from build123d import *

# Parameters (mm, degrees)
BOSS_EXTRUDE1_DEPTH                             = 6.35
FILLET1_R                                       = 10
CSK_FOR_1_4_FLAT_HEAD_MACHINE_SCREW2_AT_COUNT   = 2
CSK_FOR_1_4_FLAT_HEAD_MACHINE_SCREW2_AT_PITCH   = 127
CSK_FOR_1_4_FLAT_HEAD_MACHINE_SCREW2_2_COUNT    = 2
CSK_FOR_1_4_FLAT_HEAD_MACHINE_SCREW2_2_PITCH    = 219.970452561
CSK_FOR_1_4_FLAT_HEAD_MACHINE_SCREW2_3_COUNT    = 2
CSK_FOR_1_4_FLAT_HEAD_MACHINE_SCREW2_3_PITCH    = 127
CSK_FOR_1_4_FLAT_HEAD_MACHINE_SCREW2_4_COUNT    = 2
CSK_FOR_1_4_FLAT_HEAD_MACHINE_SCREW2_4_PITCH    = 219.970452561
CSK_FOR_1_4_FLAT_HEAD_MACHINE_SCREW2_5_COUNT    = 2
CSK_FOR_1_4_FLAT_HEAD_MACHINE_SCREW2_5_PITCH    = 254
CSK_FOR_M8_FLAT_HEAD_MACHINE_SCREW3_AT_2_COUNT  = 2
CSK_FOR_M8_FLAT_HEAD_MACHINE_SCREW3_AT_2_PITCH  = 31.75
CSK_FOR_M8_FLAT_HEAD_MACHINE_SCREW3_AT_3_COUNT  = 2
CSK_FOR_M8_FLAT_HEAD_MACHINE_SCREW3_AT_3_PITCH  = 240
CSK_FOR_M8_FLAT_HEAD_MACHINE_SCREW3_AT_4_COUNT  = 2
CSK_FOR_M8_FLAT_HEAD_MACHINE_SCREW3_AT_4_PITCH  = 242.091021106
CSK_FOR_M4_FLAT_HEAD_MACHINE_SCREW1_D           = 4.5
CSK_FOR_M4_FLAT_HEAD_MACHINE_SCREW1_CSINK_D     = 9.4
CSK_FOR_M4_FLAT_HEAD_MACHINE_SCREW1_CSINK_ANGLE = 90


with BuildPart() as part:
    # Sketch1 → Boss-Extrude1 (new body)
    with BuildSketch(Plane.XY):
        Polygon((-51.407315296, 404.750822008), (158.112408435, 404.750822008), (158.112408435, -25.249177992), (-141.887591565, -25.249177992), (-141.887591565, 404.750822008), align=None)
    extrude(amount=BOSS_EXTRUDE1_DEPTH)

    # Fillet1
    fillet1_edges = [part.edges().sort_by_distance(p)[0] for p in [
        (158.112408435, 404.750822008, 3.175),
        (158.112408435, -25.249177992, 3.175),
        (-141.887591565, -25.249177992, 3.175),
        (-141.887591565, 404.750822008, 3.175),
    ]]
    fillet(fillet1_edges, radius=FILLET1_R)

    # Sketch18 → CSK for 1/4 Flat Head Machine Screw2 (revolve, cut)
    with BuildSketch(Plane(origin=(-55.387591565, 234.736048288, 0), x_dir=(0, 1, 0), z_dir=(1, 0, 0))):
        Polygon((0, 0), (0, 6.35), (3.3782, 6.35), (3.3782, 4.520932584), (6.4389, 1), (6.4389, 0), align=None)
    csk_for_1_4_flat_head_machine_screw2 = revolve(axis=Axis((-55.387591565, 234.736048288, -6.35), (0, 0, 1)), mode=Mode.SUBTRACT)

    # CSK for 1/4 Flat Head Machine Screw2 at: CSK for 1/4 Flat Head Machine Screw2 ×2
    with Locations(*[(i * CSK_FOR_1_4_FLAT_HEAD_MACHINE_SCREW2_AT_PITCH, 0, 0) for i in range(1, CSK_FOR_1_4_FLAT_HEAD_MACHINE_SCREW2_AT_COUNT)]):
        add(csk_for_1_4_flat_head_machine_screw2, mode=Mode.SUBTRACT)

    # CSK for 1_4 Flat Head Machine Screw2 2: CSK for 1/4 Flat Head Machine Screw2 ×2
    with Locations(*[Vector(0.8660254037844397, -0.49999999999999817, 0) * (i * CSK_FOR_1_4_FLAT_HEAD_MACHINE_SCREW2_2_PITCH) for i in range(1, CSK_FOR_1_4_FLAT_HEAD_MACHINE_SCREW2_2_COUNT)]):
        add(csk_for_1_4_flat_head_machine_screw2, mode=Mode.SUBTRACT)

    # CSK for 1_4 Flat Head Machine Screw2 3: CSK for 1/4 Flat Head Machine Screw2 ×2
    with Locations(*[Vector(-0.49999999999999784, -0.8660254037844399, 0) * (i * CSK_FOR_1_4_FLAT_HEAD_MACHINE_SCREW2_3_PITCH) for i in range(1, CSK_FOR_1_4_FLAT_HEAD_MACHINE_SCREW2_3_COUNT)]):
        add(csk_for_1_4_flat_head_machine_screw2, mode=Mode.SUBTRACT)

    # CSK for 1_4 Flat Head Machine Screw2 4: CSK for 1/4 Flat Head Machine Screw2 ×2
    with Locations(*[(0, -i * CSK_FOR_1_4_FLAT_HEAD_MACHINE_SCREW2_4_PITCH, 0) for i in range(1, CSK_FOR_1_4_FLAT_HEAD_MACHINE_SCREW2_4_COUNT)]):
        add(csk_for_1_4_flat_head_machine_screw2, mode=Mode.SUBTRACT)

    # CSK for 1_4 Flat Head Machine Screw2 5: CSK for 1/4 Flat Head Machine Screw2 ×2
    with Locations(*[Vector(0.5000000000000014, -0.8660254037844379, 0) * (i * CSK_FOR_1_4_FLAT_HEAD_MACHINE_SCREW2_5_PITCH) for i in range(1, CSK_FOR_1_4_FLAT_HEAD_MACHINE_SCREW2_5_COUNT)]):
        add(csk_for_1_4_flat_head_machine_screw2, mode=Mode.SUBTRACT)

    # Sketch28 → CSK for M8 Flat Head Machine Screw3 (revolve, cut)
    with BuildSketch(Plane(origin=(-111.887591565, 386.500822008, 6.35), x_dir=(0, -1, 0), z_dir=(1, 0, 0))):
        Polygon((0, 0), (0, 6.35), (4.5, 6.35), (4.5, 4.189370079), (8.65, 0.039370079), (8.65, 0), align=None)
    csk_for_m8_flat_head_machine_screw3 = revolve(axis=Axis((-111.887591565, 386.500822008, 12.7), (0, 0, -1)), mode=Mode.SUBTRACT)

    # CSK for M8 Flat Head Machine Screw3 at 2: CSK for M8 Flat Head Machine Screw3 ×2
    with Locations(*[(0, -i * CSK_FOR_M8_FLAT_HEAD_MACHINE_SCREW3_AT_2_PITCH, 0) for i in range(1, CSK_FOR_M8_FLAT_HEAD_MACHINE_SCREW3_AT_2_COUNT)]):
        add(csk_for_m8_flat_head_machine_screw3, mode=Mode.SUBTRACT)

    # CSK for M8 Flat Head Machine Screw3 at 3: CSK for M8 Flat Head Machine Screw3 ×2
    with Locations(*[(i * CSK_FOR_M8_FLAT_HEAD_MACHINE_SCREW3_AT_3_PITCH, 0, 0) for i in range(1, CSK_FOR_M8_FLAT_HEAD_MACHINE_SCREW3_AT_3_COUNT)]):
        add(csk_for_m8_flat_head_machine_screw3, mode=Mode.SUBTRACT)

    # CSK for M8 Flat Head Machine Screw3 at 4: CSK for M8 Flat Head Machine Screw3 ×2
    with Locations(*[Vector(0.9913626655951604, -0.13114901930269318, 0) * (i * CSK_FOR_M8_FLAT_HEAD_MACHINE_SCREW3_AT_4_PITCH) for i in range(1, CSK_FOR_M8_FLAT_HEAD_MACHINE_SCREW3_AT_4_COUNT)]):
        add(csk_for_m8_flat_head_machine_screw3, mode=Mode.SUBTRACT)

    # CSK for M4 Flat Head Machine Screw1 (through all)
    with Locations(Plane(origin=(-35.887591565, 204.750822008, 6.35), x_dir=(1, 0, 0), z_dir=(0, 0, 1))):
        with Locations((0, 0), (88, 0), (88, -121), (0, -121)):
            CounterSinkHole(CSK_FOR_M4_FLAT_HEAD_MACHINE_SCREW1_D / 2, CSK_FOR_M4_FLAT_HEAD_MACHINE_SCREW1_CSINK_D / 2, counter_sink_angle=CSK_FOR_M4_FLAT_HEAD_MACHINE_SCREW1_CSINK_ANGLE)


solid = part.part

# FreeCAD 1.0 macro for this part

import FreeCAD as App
import Part
import Sketcher
from FreeCAD import Vector
Q = App.Units.Quantity


def edges_at(feature, points):
    """Names of the edges that pass closest to the given points."""
    edges = feature.Shape.Edges
    near = lambda p: min(range(len(edges)), key=lambda i: edges[i].distToShape(Part.Vertex(*p))[0])
    return sorted({f"Edge{near(p) + 1}" for p in points})

doc = App.newDocument("Part")
params = doc.addObject("Spreadsheet::Sheet", "Params")
for row, (alias, value) in enumerate([
    ("sketch1_width", "300 mm"),
    ("sketch1_height", "430 mm"),
    ("pad1_length", "6.35 mm"),
    ("fillet_radius", "10 mm"),
    ("sketch2_height", "1 mm"),
    ("sketch2_height2", "6.35 mm"),
    ("groove_angle", "360 deg"),
    ("linearpattern_pitch", "127 mm"),
    ("linearpattern2_pitch", "219.970453 mm"),
    ("linearpattern3_pitch", "127 mm"),
    ("linearpattern4_pitch", "219.970453 mm"),
    ("linearpattern5_pitch", "254 mm"),
    ("sketch3_width", "4.5 mm"),
    ("sketch3_width2", "8.65 mm"),
    ("sketch3_height", "6.35 mm"),
    ("groove2_angle", "360 deg"),
    ("linearpattern6_pitch", "31.75 mm"),
    ("linearpattern7_pitch", "240 mm"),
    ("linearpattern8_pitch", "242.091021 mm"),
    ("sketch4_diameter", "4.5 mm"),
    ("hole_diameter", "4.5 mm"),
    ("hole_csink_diameter", "9.4 mm"),
], start=1):
    params.set(f"A{row}", alias)
    params.set(f"B{row}", "=" + value)
    params.setAlias(f"B{row}", alias)

body = doc.addObject("PartDesign::Body", "Body")

# Sketch on XY plane
sketch1 = body.newObject("Sketcher::SketchObject", "Sketch")
sketch1.AttachmentSupport = (doc.getObject("XY_Plane"), [""])
sketch1.MapMode = "FlatFace"
sketch1.addGeometry([
    Part.LineSegment(Vector(158.112408, 404.750822, 0), Vector(-141.887592, 404.750822, 0)),
    Part.LineSegment(Vector(-141.887592, 404.750822, 0), Vector(-141.887592, -25.249178, 0)),
    Part.LineSegment(Vector(-141.887592, -25.249178, 0), Vector(158.112408, -25.249178, 0)),
    Part.LineSegment(Vector(158.112408, -25.249178, 0), Vector(158.112408, 404.750822, 0)),
], False)
sketch1.addConstraint([
    Sketcher.Constraint("Coincident", 0, 2, 1, 1),
    Sketcher.Constraint("Coincident", 1, 2, 2, 1),
    Sketcher.Constraint("Coincident", 2, 2, 3, 1),
    Sketcher.Constraint("Coincident", 3, 2, 0, 1),
    Sketcher.Constraint("Horizontal", 0),
    Sketcher.Constraint("Vertical", 1),
    Sketcher.Constraint("Horizontal", 2),
    Sketcher.Constraint("Vertical", 3),
    Sketcher.Constraint("DistanceX", 0, 2, 0, 1, Q("300 mm")),
    Sketcher.Constraint("DistanceY", 1, 2, 1, 1, Q("430 mm")),
    Sketcher.Constraint("DistanceX", 0, 2, -1, 1, Q("141.887592 mm")),
    Sketcher.Constraint("DistanceY", -1, 1, 0, 2, Q("404.750822 mm")),
])
sketch1.setExpression("Constraints[8]", "Params.sketch1_width")
sketch1.setExpression("Constraints[9]", "Params.sketch1_height")
pad1 = body.newObject("PartDesign::Pad", "Pad")
pad1.Profile = sketch1
pad1.setExpression("Length", "Params.pad1_length")
doc.recompute()

fillet = body.newObject("PartDesign::Fillet", "Fillet")
fillet.Base = (pad1, edges_at(pad1, [
    (158.112, 404.751, 3.175),
    (158.112, -25.249, 3.175),
    (-141.888, -25.249, 3.175),
    (-141.888, 404.751, 3.175),
]))
fillet.setExpression("Radius", "Params.fillet_radius")

# Sketch on YZ plane
sketch2 = body.newObject("Sketcher::SketchObject", "Sketch001")
sketch2.AttachmentSupport = (doc.getObject("YZ_Plane"), [""])
sketch2.MapMode = "FlatFace"
sketch2.AttachmentOffset = App.Placement(Vector(0, 0, -55.387592), App.Rotation())
sketch2.addGeometry([
    Part.LineSegment(Vector(234.736048, 6.35, 0), Vector(234.736048, 0, 0)),  # 0
    Part.LineSegment(Vector(234.736048, 0, 0), Vector(241.174948, 0, 0)),  # 1
    Part.LineSegment(Vector(241.174948, 0, 0), Vector(241.174948, 1, 0)),  # 2
    Part.LineSegment(Vector(241.174948, 1, 0), Vector(238.114248, 4.520933, 0)),  # 3
    Part.LineSegment(Vector(238.114248, 4.520933, 0), Vector(238.114248, 6.35, 0)),  # 4
    Part.LineSegment(Vector(238.114248, 6.35, 0), Vector(234.736048, 6.35, 0)),  # 5
], False)
sketch2.addGeometry(Part.LineSegment(Vector(234.736048, 0, 0), Vector(234.736048, 6.35, 0)), True)  # axis
sketch2.addConstraint([
    Sketcher.Constraint("Coincident", 0, 2, 1, 1),
    Sketcher.Constraint("Coincident", 1, 2, 2, 1),
    Sketcher.Constraint("Coincident", 2, 2, 3, 1),
    Sketcher.Constraint("Coincident", 3, 2, 4, 1),
    Sketcher.Constraint("Coincident", 4, 2, 5, 1),
    Sketcher.Constraint("Coincident", 5, 2, 0, 1),
    Sketcher.Constraint("Vertical", 0),
    Sketcher.Constraint("Horizontal", 1),
    Sketcher.Constraint("Vertical", 2),
    Sketcher.Constraint("Vertical", 4),
    Sketcher.Constraint("Horizontal", 5),
    Sketcher.Constraint("Vertical", 6),
    Sketcher.Constraint("Coincident", 6, 1, 0, 2),
    Sketcher.Constraint("PointOnObject", 0, 2, -1),
    Sketcher.Constraint("Horizontal", 4, 2, 6, 2),
    Sketcher.Constraint("DistanceY", 2, 1, 2, 2, Q("1 mm")),
    Sketcher.Constraint("Angle", 3, Q("131 deg")),
    Sketcher.Constraint("DistanceY", 0, 2, 0, 1, Q("6.35 mm")),
    Sketcher.Constraint("DistanceX", 1, 1, 1, 2, Q("6.4389 mm")),
    Sketcher.Constraint("DistanceX", 5, 2, 5, 1, Q("3.3782 mm")),
    Sketcher.Constraint("DistanceX", -1, 1, 0, 2, Q("234.736048 mm")),
])
sketch2.setExpression("Constraints[15]", "Params.sketch2_height")
sketch2.setExpression("Constraints[17]", "Params.sketch2_height2")
groove = body.newObject("PartDesign::Groove", "Groove")
groove.Profile = sketch2
groove.ReferenceAxis = (sketch2, ["Axis0"])
groove.setExpression("Angle", "Params.groove_angle")
doc.recompute()

linearpattern = body.newObject("PartDesign::LinearPattern", "LinearPattern")
linearpattern.Originals = [groove]
linearpattern.Direction = (doc.getObject("X_Axis"), [""])
linearpattern.Mode = "offset"
linearpattern.setExpression("Offset", "Params.linearpattern_pitch")
linearpattern.Occurrences = 2
body.Tip = linearpattern
doc.recompute()

datumline = body.newObject("PartDesign::Line", "DatumLine")
datumline.Placement = App.Placement(Vector(0, 0, 0), App.Rotation(Vector(0, 0, 1), Vector(0.866025404, -0.5, 0)))
linearpattern2 = body.newObject("PartDesign::LinearPattern", "LinearPattern001")
linearpattern2.Originals = [groove]
linearpattern2.Direction = (datumline, [""])
linearpattern2.Mode = "offset"
linearpattern2.setExpression("Offset", "Params.linearpattern2_pitch")
linearpattern2.Occurrences = 2
body.Tip = linearpattern2
doc.recompute()

datumline2 = body.newObject("PartDesign::Line", "DatumLine001")
datumline2.Placement = App.Placement(Vector(0, 0, 0), App.Rotation(Vector(0, 0, 1), Vector(-0.5, -0.866025404, 0)))
linearpattern3 = body.newObject("PartDesign::LinearPattern", "LinearPattern002")
linearpattern3.Originals = [groove]
linearpattern3.Direction = (datumline2, [""])
linearpattern3.Mode = "offset"
linearpattern3.setExpression("Offset", "Params.linearpattern3_pitch")
linearpattern3.Occurrences = 2
body.Tip = linearpattern3
doc.recompute()

linearpattern4 = body.newObject("PartDesign::LinearPattern", "LinearPattern003")
linearpattern4.Originals = [groove]
linearpattern4.Direction = (doc.getObject("Y_Axis"), [""])
linearpattern4.Mode = "offset"
linearpattern4.setExpression("Offset", "Params.linearpattern4_pitch")
linearpattern4.Occurrences = 2
linearpattern4.Reversed = True
body.Tip = linearpattern4
doc.recompute()

datumline3 = body.newObject("PartDesign::Line", "DatumLine002")
datumline3.Placement = App.Placement(Vector(0, 0, 0), App.Rotation(Vector(0, 0, 1), Vector(0.5, -0.866025404, 0)))
linearpattern5 = body.newObject("PartDesign::LinearPattern", "LinearPattern004")
linearpattern5.Originals = [groove]
linearpattern5.Direction = (datumline3, [""])
linearpattern5.Mode = "offset"
linearpattern5.setExpression("Offset", "Params.linearpattern5_pitch")
linearpattern5.Occurrences = 2
body.Tip = linearpattern5

# Sketch on YZ plane
sketch3 = body.newObject("Sketcher::SketchObject", "Sketch002")
sketch3.AttachmentSupport = (doc.getObject("YZ_Plane"), [""])
sketch3.MapMode = "FlatFace"
sketch3.AttachmentOffset = App.Placement(Vector(0, 0, -111.887592), App.Rotation())
sketch3.addGeometry([
    Part.LineSegment(Vector(386.500822, 0, 0), Vector(386.500822, 6.35, 0)),  # 0
    Part.LineSegment(Vector(386.500822, 6.35, 0), Vector(377.850822, 6.35, 0)),  # 1
    Part.LineSegment(Vector(377.850822, 6.35, 0), Vector(377.850822, 6.31063, 0)),  # 2
    Part.LineSegment(Vector(377.850822, 6.31063, 0), Vector(382.000822, 2.16063, 0)),  # 3
    Part.LineSegment(Vector(382.000822, 2.16063, 0), Vector(382.000822, 0, 0)),  # 4
    Part.LineSegment(Vector(382.000822, 0, 0), Vector(386.500822, 0, 0)),  # 5
], False)
sketch3.addGeometry(Part.LineSegment(Vector(386.500822, 6.35, 0), Vector(386.500822, 0, 0)), True)  # axis
sketch3.addConstraint([
    Sketcher.Constraint("Coincident", 0, 2, 1, 1),
    Sketcher.Constraint("Coincident", 1, 2, 2, 1),
    Sketcher.Constraint("Coincident", 2, 2, 3, 1),
    Sketcher.Constraint("Coincident", 3, 2, 4, 1),
    Sketcher.Constraint("Coincident", 4, 2, 5, 1),
    Sketcher.Constraint("Coincident", 5, 2, 0, 1),
    Sketcher.Constraint("Vertical", 0),
    Sketcher.Constraint("Horizontal", 1),
    Sketcher.Constraint("Vertical", 2),
    Sketcher.Constraint("Vertical", 4),
    Sketcher.Constraint("Horizontal", 5),
    Sketcher.Constraint("Vertical", 6),
    Sketcher.Constraint("Coincident", 6, 1, 0, 2),
    Sketcher.Constraint("PointOnObject", 4, 2, -1),
    Sketcher.Constraint("PointOnObject", 6, 2, -1),
    Sketcher.Constraint("Angle", 3, Q("-45 deg")),
    Sketcher.Constraint("DistanceX", 5, 1, 5, 2, Q("4.5 mm")),
    Sketcher.Constraint("DistanceX", 1, 2, 1, 1, Q("8.65 mm")),
    Sketcher.Constraint("DistanceY", 0, 1, 0, 2, Q("6.35 mm")),
    Sketcher.Constraint("DistanceY", 2, 2, 2, 1, Q("0.03937 mm")),
    Sketcher.Constraint("DistanceX", -1, 1, 0, 2, Q("386.500822 mm")),
])
sketch3.setExpression("Constraints[16]", "Params.sketch3_width")
sketch3.setExpression("Constraints[17]", "Params.sketch3_width2")
sketch3.setExpression("Constraints[18]", "Params.sketch3_height")
groove2 = body.newObject("PartDesign::Groove", "Groove001")
groove2.Profile = sketch3
groove2.ReferenceAxis = (sketch3, ["Axis0"])
groove2.setExpression("Angle", "Params.groove2_angle")
doc.recompute()

linearpattern6 = body.newObject("PartDesign::LinearPattern", "LinearPattern005")
linearpattern6.Originals = [groove2]
linearpattern6.Direction = (doc.getObject("Y_Axis"), [""])
linearpattern6.Mode = "offset"
linearpattern6.setExpression("Offset", "Params.linearpattern6_pitch")
linearpattern6.Occurrences = 2
linearpattern6.Reversed = True
body.Tip = linearpattern6
doc.recompute()

linearpattern7 = body.newObject("PartDesign::LinearPattern", "LinearPattern006")
linearpattern7.Originals = [groove2]
linearpattern7.Direction = (doc.getObject("X_Axis"), [""])
linearpattern7.Mode = "offset"
linearpattern7.setExpression("Offset", "Params.linearpattern7_pitch")
linearpattern7.Occurrences = 2
body.Tip = linearpattern7
doc.recompute()

datumline4 = body.newObject("PartDesign::Line", "DatumLine003")
datumline4.Placement = App.Placement(Vector(0, 0, 0), App.Rotation(Vector(0, 0, 1), Vector(0.991362666, -0.131149019, 0)))
linearpattern8 = body.newObject("PartDesign::LinearPattern", "LinearPattern007")
linearpattern8.Originals = [groove2]
linearpattern8.Direction = (datumline4, [""])
linearpattern8.Mode = "offset"
linearpattern8.setExpression("Offset", "Params.linearpattern8_pitch")
linearpattern8.Occurrences = 2
body.Tip = linearpattern8

# Sketch on XY plane
sketch4 = body.newObject("Sketcher::SketchObject", "Sketch003")
sketch4.AttachmentSupport = (doc.getObject("XY_Plane"), [""])
sketch4.MapMode = "FlatFace"
sketch4.AttachmentOffset = App.Placement(Vector(0, 0, 6.35), App.Rotation())
sketch4.addGeometry([
    Part.Circle(Vector(-35.887592, 204.750822, 0), Vector(0, 0, 1), 2.25),
    Part.Circle(Vector(52.112408, 204.750822, 0), Vector(0, 0, 1), 2.25),
    Part.Circle(Vector(52.112408, 83.750822, 0), Vector(0, 0, 1), 2.25),
    Part.Circle(Vector(-35.887592, 83.750822, 0), Vector(0, 0, 1), 2.25),
], False)
sketch4.addConstraint([
    Sketcher.Constraint("Equal", 0, 1),
    Sketcher.Constraint("Equal", 1, 2),
    Sketcher.Constraint("Equal", 2, 3),
    Sketcher.Constraint("Horizontal", 0, 3, 1, 3),
    Sketcher.Constraint("Horizontal", 2, 3, 3, 3),
    Sketcher.Constraint("Vertical", 1, 3, 2, 3),
    Sketcher.Constraint("Vertical", 0, 3, 3, 3),
    Sketcher.Constraint("Diameter", 0, Q("4.5 mm")),
    Sketcher.Constraint("DistanceX", 0, 3, 1, 3, Q("88 mm")),
    Sketcher.Constraint("DistanceY", 2, 3, 1, 3, Q("121 mm")),
    Sketcher.Constraint("DistanceX", 0, 3, -1, 1, Q("35.887592 mm")),
    Sketcher.Constraint("DistanceY", -1, 1, 0, 3, Q("204.750822 mm")),
])
sketch4.setExpression("Constraints[7]", "Params.sketch4_diameter")
doc.recompute()
hole = body.newObject("PartDesign::Hole", "Hole")
hole.Profile = sketch4
hole.ThreadType = "None"
hole.setExpression("Diameter", "Params.hole_diameter")
hole.DepthType = "ThroughAll"
hole.HoleCutType = "Countersink"
hole.setExpression("HoleCutDiameter", "Params.hole_csink_diameter")
hole.HoleCutCountersinkAngle = 90

doc.recompute()
